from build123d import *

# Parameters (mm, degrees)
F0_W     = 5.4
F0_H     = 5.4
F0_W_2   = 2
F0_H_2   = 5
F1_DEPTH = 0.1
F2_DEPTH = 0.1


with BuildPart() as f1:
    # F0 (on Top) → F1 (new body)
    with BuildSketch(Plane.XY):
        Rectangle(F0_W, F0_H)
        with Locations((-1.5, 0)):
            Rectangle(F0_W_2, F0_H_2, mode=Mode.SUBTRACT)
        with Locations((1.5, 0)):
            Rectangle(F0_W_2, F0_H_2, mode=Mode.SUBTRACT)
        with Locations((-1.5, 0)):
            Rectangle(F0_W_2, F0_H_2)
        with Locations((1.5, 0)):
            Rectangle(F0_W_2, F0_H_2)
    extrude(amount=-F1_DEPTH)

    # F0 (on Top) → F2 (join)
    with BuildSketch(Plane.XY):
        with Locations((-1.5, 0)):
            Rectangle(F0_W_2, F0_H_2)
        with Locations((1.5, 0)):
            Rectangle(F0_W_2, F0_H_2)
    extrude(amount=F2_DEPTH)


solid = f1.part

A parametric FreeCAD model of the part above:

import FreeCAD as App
import Part
import Sketcher

V = App.Vector


def add_polygon(sketch, points):
    """Adds a closed chain of lines whose ends are joined by coincident constraints."""
    first, n = sketch.GeometryCount, len(points)
    for a, b in zip(points, points[1:] + points[:1]):
        sketch.addGeometry(Part.LineSegment(App.Vector(*a, 0), App.Vector(*b, 0)), False)
    for i in range(n):
        sketch.addConstraint(Sketcher.Constraint("Coincident", first + i, 2, first + (i + 1) % n, 1))

doc = App.newDocument("Part")
body = doc.addObject("PartDesign::Body", "Body")

# Sketch on XY plane
sketch1 = body.newObject("Sketcher::SketchObject", "Sketch")
sketch1.AttachmentSupport = (doc.getObject("XY_Plane"), [""])
sketch1.MapMode = "FlatFace"
add_polygon(sketch1, [(-3, 3), (-3, -3), (3, -3), (3, 3)])  # lines 0-3
sketch1.addConstraint([
    Sketcher.Constraint("Vertical", 0),
    Sketcher.Constraint("Horizontal", 1),
    Sketcher.Constraint("Vertical", 2),
    Sketcher.Constraint("Horizontal", 3),
    Sketcher.Constraint("Symmetric", 0, 2, 2, 2, -1, 1),
    Sketcher.Constraint("Equal", 3, 0),
    Sketcher.Constraint("DistanceX", 1, 1, 1, 2, 5.4),
])
pad1 = body.newObject("PartDesign::Pad", "Pad")
pad1.Profile = sketch1
pad1.Length = 0.1
pad1.Reversed = True

# Sketch on XY plane
sketch2 = body.newObject("Sketcher::SketchObject", "Sketch001")
sketch2.AttachmentSupport = (doc.getObject("XY_Plane"), [""])
sketch2.MapMode = "FlatFace"
add_polygon(sketch2, [(-2.5, 2.5), (-2.5, -2.5), (-0.5, -2.5), (-0.5, 2.5)])  # lines 0-3
add_polygon(sketch2, [(0.5, 2.5), (0.5, -2.5), (2.5, -2.5), (2.5, 2.5)])  # lines 4-7
sketch2.addConstraint([
    Sketcher.Constraint("Vertical", 0),
    Sketcher.Constraint("Horizontal", 1),
    Sketcher.Constraint("Vertical", 2),
    Sketcher.Constraint("Horizontal", 3),
    Sketcher.Constraint("Vertical", 4),
    Sketcher.Constraint("Horizontal", 5),
    Sketcher.Constraint("Vertical", 6),
    Sketcher.Constraint("Horizontal", 7),
    Sketcher.Constraint("Symmetric", 2, 2, 4, 2, -1, 1),
    Sketcher.Constraint("Symmetric", 0, 2, 6, 2, -1, 1),
    Sketcher.Constraint("Horizontal", 1, 2, 4, 2),
    Sketcher.Constraint("DistanceX", 1, 1, 1, 2, 2.0),
    Sketcher.Constraint("DistanceY", 0, 2, 0, 1, 5.0),
    Sketcher.Constraint("DistanceX", 1, 2, 4, 2, 1.0),
])
pad2 = body.newObject("PartDesign::Pad", "Pad001")
pad2.Profile = sketch2
pad2.Length = 0.1

doc.recompute()
